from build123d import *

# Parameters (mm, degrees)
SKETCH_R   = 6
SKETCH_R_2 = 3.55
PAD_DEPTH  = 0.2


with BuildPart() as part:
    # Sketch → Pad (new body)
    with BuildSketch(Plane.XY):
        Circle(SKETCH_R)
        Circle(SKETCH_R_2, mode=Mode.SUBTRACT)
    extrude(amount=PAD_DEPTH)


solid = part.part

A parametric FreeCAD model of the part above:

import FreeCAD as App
import Part
import Sketcher

V = App.Vector
Q = App.Units.Quantity

doc = App.newDocument("Part")
body = doc.addObject("PartDesign::Body", "Body")

# Sketch on XY plane
sketch1 = body.newObject("Sketcher::SketchObject", "Sketch")
sketch1.AttachmentSupport = (doc.getObject("XY_Plane"), [""])
sketch1.MapMode = "FlatFace"
sketch1.addGeometry([
    Part.Circle(V(0, 0, 0), V(0, 0, 1), 6),
    Part.Circle(V(0, 0, 0), V(0, 0, 1), 3.5),
], False)
sketch1.addConstraint([
    Sketcher.Constraint("Coincident", 0, 3, -1, 1),
    Sketcher.Constraint("Coincident", 1, 3, -1, 1),
    Sketcher.Constraint("Diameter", 0, Q("12 mm")),
    Sketcher.Constraint("Diameter", 1, Q("7.1 mm")),
])
pad1 = body.newObject("PartDesign::Pad", "Pad")
pad1.Profile = sketch1
pad1.Length = 0.2

doc.recompute()
